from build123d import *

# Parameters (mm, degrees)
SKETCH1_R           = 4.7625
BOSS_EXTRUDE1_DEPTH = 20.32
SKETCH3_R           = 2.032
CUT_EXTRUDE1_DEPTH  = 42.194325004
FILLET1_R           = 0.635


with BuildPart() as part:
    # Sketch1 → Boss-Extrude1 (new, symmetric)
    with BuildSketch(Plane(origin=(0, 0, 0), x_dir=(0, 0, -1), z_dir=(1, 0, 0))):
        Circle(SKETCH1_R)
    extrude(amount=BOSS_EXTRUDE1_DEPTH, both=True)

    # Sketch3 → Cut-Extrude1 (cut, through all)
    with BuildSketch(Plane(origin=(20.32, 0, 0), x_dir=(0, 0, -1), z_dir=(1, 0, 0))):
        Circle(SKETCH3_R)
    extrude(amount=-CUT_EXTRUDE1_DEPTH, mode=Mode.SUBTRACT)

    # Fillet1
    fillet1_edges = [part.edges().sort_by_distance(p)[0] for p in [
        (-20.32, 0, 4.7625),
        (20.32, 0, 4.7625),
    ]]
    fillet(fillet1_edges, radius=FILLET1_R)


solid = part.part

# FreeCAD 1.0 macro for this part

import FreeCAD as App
import Part
import Sketcher
Q = App.Units.Quantity


def edges_at(feature, points):
    """Names of the edges that pass closest to the given points."""
    edges = feature.Shape.Edges
    near = lambda p: min(range(len(edges)), key=lambda i: edges[i].distToShape(Part.Vertex(*p))[0])
    return sorted({f"Edge{near(p) + 1}" for p in points})

doc = App.newDocument("Part")
body = doc.addObject("PartDesign::Body", "Body")

sketch1 = body.newObject("Sketcher::SketchObject", "Sketch")
sketch1.AttachmentSupport = (doc.getObject("YZ_Plane"), [""])
sketch1.MapMode = "FlatFace"
sketch1.addGeometry(Part.Circle(App.Vector(0, 0, 0), App.Vector(0, 0, 1), 4.8), False)
sketch1.addConstraint([
    Sketcher.Constraint("Coincident", 0, 3, -1, 1),
    Sketcher.Constraint("Diameter", 0, Q("0.375 in")),
])
pad1 = body.newObject("PartDesign::Pad", "Pad")
pad1.Profile = sketch1
pad1.Length = Q("1.6 in")
pad1.Midplane = True

sketch2 = body.newObject("Sketcher::SketchObject", "Sketch001")
sketch2.AttachmentSupport = (doc.getObject("YZ_Plane"), [""])
sketch2.MapMode = "FlatFace"
sketch2.AttachmentOffset = App.Placement(App.Vector(0, 0, 0.8 * 25.4), App.Rotation())
sketch2.addGeometry(Part.Circle(App.Vector(0, 0, 0), App.Vector(0, 0, 1), 2), False)
sketch2.addConstraint([
    Sketcher.Constraint("Coincident", 0, 3, -1, 1),
    Sketcher.Constraint("Diameter", 0, Q("0.16 in")),
])
pocket1 = body.newObject("PartDesign::Pocket", "Pocket")
pocket1.Profile = sketch2
pocket1.Type = "ThroughAll"
doc.recompute()

fillet = body.newObject("PartDesign::Fillet", "Fillet")
fillet.Base = (pocket1, edges_at(pocket1, [(-20.32, 0, 4.763), (20.32, 0, 4.763)]))
fillet.Radius = Q("0.025 in")

doc.recompute()
